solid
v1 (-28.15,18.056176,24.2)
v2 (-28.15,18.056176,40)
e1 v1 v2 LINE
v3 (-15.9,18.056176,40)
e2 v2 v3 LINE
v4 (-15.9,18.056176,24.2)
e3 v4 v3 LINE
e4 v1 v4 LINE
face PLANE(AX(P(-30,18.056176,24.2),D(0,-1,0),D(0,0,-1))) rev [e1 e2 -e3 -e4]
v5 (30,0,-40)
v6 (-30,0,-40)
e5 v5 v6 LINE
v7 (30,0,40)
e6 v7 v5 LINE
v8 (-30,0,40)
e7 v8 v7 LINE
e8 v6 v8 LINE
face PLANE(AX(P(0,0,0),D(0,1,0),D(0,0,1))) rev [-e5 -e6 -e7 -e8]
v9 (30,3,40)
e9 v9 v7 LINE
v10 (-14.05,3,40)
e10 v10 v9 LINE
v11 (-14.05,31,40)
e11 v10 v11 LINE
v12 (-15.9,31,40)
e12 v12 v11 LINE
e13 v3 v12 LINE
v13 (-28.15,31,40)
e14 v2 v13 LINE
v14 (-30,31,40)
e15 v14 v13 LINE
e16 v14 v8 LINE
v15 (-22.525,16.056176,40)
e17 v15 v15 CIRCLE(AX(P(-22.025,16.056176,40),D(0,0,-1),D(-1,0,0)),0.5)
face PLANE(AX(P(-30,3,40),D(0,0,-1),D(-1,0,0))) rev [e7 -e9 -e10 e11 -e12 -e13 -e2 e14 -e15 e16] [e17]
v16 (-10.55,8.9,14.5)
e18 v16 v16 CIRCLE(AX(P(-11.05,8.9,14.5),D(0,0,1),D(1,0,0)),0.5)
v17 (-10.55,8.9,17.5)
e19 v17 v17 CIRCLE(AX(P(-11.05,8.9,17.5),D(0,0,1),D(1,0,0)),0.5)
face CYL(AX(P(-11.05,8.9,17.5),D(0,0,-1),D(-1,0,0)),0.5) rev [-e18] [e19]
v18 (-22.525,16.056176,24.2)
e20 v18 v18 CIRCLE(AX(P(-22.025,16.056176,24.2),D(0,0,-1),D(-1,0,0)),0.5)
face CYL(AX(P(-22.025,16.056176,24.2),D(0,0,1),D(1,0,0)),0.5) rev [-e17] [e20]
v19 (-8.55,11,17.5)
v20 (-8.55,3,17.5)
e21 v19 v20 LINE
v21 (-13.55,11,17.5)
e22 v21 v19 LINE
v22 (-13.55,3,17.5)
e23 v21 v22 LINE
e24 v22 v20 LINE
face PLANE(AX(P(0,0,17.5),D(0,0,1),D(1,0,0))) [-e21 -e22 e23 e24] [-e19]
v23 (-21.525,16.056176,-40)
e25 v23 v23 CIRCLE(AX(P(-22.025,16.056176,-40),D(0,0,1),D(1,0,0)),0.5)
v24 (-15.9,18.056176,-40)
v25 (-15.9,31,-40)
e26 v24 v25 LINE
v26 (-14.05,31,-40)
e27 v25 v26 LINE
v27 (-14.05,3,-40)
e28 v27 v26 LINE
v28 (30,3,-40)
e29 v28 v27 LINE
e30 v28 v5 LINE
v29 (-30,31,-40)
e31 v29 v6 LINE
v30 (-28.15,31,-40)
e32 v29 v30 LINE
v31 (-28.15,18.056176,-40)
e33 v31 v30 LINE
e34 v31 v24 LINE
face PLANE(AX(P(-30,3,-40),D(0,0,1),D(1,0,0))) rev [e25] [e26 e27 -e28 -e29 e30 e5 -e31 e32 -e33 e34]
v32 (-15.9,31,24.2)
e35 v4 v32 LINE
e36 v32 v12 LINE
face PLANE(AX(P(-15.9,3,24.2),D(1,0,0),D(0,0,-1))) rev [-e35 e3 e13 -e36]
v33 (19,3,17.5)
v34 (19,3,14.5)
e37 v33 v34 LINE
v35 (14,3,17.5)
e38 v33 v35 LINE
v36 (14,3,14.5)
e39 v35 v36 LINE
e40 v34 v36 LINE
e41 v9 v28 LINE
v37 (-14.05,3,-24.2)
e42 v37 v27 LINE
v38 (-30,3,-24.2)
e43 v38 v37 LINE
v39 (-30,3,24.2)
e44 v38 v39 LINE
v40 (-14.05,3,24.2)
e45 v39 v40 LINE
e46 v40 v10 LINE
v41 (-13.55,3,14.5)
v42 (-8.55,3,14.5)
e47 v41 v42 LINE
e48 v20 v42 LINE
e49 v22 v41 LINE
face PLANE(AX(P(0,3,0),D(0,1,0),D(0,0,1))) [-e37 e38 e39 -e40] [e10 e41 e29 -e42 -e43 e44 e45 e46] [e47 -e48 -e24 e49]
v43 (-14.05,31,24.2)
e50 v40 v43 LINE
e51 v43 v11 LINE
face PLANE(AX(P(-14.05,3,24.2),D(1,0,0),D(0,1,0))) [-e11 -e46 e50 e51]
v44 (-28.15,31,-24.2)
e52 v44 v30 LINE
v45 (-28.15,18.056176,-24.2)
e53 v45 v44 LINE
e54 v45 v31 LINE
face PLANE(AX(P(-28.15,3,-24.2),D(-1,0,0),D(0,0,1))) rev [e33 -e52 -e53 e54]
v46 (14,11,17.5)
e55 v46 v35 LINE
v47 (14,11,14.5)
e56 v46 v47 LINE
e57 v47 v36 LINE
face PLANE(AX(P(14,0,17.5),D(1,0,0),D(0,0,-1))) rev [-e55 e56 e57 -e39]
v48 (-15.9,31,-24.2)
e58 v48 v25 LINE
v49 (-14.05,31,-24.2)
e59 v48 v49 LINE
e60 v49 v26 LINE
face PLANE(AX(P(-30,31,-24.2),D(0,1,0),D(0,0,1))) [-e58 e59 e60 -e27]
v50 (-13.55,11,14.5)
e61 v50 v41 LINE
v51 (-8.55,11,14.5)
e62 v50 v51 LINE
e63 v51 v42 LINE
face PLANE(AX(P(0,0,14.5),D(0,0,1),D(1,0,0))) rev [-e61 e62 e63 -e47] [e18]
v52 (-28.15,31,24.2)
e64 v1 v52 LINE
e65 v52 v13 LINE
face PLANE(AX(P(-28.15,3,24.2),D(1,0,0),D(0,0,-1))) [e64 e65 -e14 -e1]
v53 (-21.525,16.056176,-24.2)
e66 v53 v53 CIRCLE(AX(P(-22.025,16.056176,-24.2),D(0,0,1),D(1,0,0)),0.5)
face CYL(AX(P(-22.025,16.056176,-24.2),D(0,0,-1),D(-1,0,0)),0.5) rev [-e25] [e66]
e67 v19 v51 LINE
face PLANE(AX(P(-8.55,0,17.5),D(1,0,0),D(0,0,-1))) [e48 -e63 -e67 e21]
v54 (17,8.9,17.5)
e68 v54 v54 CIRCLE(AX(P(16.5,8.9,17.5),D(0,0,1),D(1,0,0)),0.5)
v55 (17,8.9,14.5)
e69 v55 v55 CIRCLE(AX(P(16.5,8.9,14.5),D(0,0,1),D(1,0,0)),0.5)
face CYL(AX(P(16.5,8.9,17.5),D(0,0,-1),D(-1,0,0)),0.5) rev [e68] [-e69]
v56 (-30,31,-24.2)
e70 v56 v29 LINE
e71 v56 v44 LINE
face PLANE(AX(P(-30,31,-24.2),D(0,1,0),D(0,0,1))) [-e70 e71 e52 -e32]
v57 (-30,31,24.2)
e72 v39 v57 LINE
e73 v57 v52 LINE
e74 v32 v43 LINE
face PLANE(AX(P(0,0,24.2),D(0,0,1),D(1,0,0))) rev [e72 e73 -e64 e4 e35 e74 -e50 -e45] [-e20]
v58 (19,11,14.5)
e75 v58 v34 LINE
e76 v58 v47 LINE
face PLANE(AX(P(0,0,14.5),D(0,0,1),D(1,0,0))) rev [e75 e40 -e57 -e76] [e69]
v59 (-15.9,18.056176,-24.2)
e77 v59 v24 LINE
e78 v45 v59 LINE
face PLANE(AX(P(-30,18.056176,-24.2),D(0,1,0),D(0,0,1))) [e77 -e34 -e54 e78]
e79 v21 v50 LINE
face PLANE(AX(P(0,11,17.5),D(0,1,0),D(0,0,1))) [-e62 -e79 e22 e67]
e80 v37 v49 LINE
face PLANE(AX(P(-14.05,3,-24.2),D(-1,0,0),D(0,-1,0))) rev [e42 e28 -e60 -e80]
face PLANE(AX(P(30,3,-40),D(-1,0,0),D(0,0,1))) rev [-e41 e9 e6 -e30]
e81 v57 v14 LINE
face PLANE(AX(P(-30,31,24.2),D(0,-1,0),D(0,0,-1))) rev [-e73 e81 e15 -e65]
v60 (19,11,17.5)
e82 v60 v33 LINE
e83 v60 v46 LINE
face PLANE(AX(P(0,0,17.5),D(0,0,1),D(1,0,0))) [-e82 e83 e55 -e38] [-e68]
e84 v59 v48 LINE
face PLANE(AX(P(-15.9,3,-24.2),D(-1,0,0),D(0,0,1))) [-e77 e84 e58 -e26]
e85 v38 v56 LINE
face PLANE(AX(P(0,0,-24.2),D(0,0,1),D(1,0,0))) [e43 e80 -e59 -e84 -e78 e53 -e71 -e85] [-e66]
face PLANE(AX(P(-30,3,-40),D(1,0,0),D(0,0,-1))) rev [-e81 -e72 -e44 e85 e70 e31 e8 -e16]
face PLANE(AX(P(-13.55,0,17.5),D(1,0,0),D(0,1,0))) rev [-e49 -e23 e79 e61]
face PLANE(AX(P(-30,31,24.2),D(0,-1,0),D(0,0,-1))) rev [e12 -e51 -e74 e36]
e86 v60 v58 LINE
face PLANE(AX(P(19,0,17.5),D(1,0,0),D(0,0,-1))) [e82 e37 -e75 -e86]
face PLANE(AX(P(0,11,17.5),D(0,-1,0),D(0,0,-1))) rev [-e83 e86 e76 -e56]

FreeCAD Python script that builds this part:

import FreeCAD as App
import Part
import Sketcher

V = App.Vector


def add_polygon(sketch, points):
    """Adds a closed chain of lines whose ends are joined by coincident constraints."""
    first, n = sketch.GeometryCount, len(points)
    for a, b in zip(points, points[1:] + points[:1]):
        sketch.addGeometry(Part.LineSegment(App.Vector(*a, 0), App.Vector(*b, 0)), False)
    for i in range(n):
        sketch.addConstraint(Sketcher.Constraint("Coincident", first + i, 2, first + (i + 1) % n, 1))

doc = App.newDocument("Part")
body = doc.addObject("PartDesign::Body", "Body")

# Sketch on XZ plane
sketch1 = doc.addObject("Sketcher::SketchObject", "Sketch")
body.addObject(sketch1)
sketch1.AttachmentSupport = (doc.XZ_Plane, [""])
sketch1.MapMode = "FlatFace"
add_polygon(sketch1, [(-30, -40), (-30, 40), (30, 40), (30, -40)])  # lines 0-3
sketch1.addConstraint(Sketcher.Constraint("Vertical", 0))
sketch1.addConstraint(Sketcher.Constraint("Horizontal", 1))
sketch1.addConstraint(Sketcher.Constraint("Vertical", 2))
sketch1.addConstraint(Sketcher.Constraint("Horizontal", 3))
sketch1.addConstraint(Sketcher.Constraint("Symmetric", 0, 2, 2, 2, -1, 1))
sketch1.addConstraint(Sketcher.Constraint("DistanceX", 1, 1, 1, 2, 60.0))
sketch1.addConstraint(Sketcher.Constraint("DistanceY", 0, 1, 0, 2, 80.0))
pad1 = doc.addObject("PartDesign::Pad", "Pad")
body.addObject(pad1)
pad1.Profile = sketch1
pad1.Length = 3
pad1.Reversed = True

# Sketch on XY plane
sketch2 = doc.addObject("Sketcher::SketchObject", "Sketch001")
body.addObject(sketch2)
sketch2.AttachmentSupport = (doc.XY_Plane, [""])
sketch2.MapMode = "FlatFace"
sketch2.AttachmentOffset = App.Placement(V(0, 0, 40), App.Rotation())
add_polygon(sketch2, [(-14.1, 3), (-14.1, 31), (-15.9, 31), (-15.9, 18.1), (-28.1, 18.1), (-28.1, 31), (-30, 31), (-30, 3)])  # lines 0-7
sketch2.addGeometry(Part.Circle(V(-22, 16.1, 0), V(0, 0, 1), 0.5), False)  # 8
sketch2.addConstraint(Sketcher.Constraint("Vertical", 0))
sketch2.addConstraint(Sketcher.Constraint("Horizontal", 1))
sketch2.addConstraint(Sketcher.Constraint("Vertical", 2))
sketch2.addConstraint(Sketcher.Constraint("Horizontal", 3))
sketch2.addConstraint(Sketcher.Constraint("Vertical", 4))
sketch2.addConstraint(Sketcher.Constraint("Horizontal", 5))
sketch2.addConstraint(Sketcher.Constraint("Vertical", 6))
sketch2.addConstraint(Sketcher.Constraint("Horizontal", 7))
sketch2.addConstraint(Sketcher.Constraint("Horizontal", 1, 2, 4, 2))
sketch2.addConstraint(Sketcher.Constraint("Equal", 1, 5))
sketch2.addConstraint(Sketcher.Constraint("Diameter", 8, 1.0))
sketch2.addConstraint(Sketcher.Constraint("DistanceY", 0, 1, 0, 2, 28.0))
sketch2.addConstraint(Sketcher.Constraint("DistanceY", -1, 1, 0, 2, 31.0))
sketch2.addConstraint(Sketcher.Constraint("DistanceX", 5, 2, -1, 1, 30.0))
sketch2.addConstraint(Sketcher.Constraint("DistanceY", 8, 3, 2, 2, 2.0))
sketch2.addConstraint(Sketcher.Constraint("DistanceX", 1, 2, 1, 1, 1.85))
sketch2.addConstraint(Sketcher.Constraint("DistanceX", 3, 2, 3, 1, 12.25))
sketch2.addConstraint(Sketcher.Constraint("DistanceX", 8, 3, -1, 1, 22.025))
sketch2.addConstraint(Sketcher.Constraint("DistanceY", 2, 2, 2, 1, 12.943824))
pad2 = doc.addObject("PartDesign::Pad", "Pad001")
body.addObject(pad2)
pad2.Profile = sketch2
pad2.Length = 15.8
pad2.Reversed = True

# Sketch on XY plane
sketch3 = doc.addObject("Sketcher::SketchObject", "Sketch002")
body.addObject(sketch3)
sketch3.AttachmentSupport = (doc.XY_Plane, [""])
sketch3.MapMode = "FlatFace"
sketch3.AttachmentOffset = App.Placement(V(0, 0, -40), App.Rotation())
add_polygon(sketch3, [(-14.1, 3), (-14.1, 31), (-15.9, 31), (-15.9, 18.1), (-28.1, 18.1), (-28.1, 31), (-30, 31), (-30, 3)])  # lines 0-7
sketch3.addGeometry(Part.Circle(V(-22, 16.1, 0), V(0, 0, 1), 0.5), False)  # 8
sketch3.addConstraint(Sketcher.Constraint("Vertical", 0))
sketch3.addConstraint(Sketcher.Constraint("Horizontal", 1))
sketch3.addConstraint(Sketcher.Constraint("Vertical", 2))
sketch3.addConstraint(Sketcher.Constraint("Horizontal", 3))
sketch3.addConstraint(Sketcher.Constraint("Vertical", 4))
sketch3.addConstraint(Sketcher.Constraint("Horizontal", 5))
sketch3.addConstraint(Sketcher.Constraint("Vertical", 6))
sketch3.addConstraint(Sketcher.Constraint("Horizontal", 7))
sketch3.addConstraint(Sketcher.Constraint("Horizontal", 1, 2, 4, 2))
sketch3.addConstraint(Sketcher.Constraint("Equal", 1, 5))
sketch3.addConstraint(Sketcher.Constraint("Diameter", 8, 1.0))
sketch3.addConstraint(Sketcher.Constraint("DistanceY", 0, 1, 0, 2, 28.0))
sketch3.addConstraint(Sketcher.Constraint("DistanceY", -1, 1, 0, 2, 31.0))
sketch3.addConstraint(Sketcher.Constraint("DistanceX", 5, 2, -1, 1, 30.0))
sketch3.addConstraint(Sketcher.Constraint("DistanceY", 8, 3, 2, 2, 2.0))
sketch3.addConstraint(Sketcher.Constraint("DistanceX", 1, 2, 1, 1, 1.85))
sketch3.addConstraint(Sketcher.Constraint("DistanceX", 3, 2, 3, 1, 12.25))
sketch3.addConstraint(Sketcher.Constraint("DistanceX", 8, 3, -1, 1, 22.025))
sketch3.addConstraint(Sketcher.Constraint("DistanceY", 2, 2, 2, 1, 12.943824))
pad3 = doc.addObject("PartDesign::Pad", "Pad002")
body.addObject(pad3)
pad3.Profile = sketch3
pad3.Length = 15.8

# Sketch on XY plane
sketch4 = doc.addObject("Sketcher::SketchObject", "Sketch003")
body.addObject(sketch4)
sketch4.AttachmentSupport = (doc.XY_Plane, [""])
sketch4.MapMode = "FlatFace"
sketch4.AttachmentOffset = App.Placement(V(0, 0, 14.5), App.Rotation())
add_polygon(sketch4, [(14, 11), (14, 3), (19, 3), (19, 11)])  # lines 0-3
sketch4.addGeometry(Part.Circle(V(16.5, 8.9, 0), V(0, 0, 1), 0.5), False)  # 4
add_polygon(sketch4, [(-13.6, 11), (-13.6, 3), (-8.6, 3), (-8.6, 11)])  # lines 5-8
sketch4.addGeometry(Part.Circle(V(-11.1, 8.9, 0), V(0, 0, 1), 0.5), False)  # 9
sketch4.addConstraint(Sketcher.Constraint("Vertical", 0))
sketch4.addConstraint(Sketcher.Constraint("Horizontal", 1))
sketch4.addConstraint(Sketcher.Constraint("Vertical", 2))
sketch4.addConstraint(Sketcher.Constraint("Horizontal", 3))
sketch4.addConstraint(Sketcher.Constraint("Vertical", 5))
sketch4.addConstraint(Sketcher.Constraint("Horizontal", 6))
sketch4.addConstraint(Sketcher.Constraint("Vertical", 7))
sketch4.addConstraint(Sketcher.Constraint("Horizontal", 8))
sketch4.addConstraint(Sketcher.Constraint("Equal", 4, 9))
sketch4.addConstraint(Sketcher.Constraint("Horizontal", 4, 3, 9, 3))
sketch4.addConstraint(Sketcher.Constraint("Horizontal", 1, 2, 5, 2))
sketch4.addConstraint(Sketcher.Constraint("Horizontal", 3, 2, 7, 2))
sketch4.addConstraint(Sketcher.Constraint("Equal", 3, 6))
sketch4.addConstraint(Sketcher.Constraint("Diameter", 4, 1.0))
sketch4.addConstraint(Sketcher.Constraint("DistanceX", 1, 1, 1, 2, 5.0))
sketch4.addConstraint(Sketcher.Constraint("DistanceY", 0, 2, 0, 1, 8.0))
sketch4.addConstraint(Sketcher.Constraint("DistanceX", -1, 1, 0, 2, 14.0))
sketch4.addConstraint(Sketcher.Constraint("DistanceY", -1, 1, 0, 2, 3.0))
sketch4.addConstraint(Sketcher.Constraint("DistanceX", -1, 1, 4, 3, 16.5))
sketch4.addConstraint(Sketcher.Constraint("DistanceY", -1, 1, 4, 3, 8.9))
sketch4.addConstraint(Sketcher.Constraint("DistanceX", 5, 2, 9, 3, 2.5))
sketch4.addConstraint(Sketcher.Constraint("DistanceX", 9, 3, -1, 1, 11.05))
pad4 = doc.addObject("PartDesign::Pad", "Pad003")
body.addObject(pad4)
pad4.Profile = sketch4
pad4.Length = 3

doc.recompute()
